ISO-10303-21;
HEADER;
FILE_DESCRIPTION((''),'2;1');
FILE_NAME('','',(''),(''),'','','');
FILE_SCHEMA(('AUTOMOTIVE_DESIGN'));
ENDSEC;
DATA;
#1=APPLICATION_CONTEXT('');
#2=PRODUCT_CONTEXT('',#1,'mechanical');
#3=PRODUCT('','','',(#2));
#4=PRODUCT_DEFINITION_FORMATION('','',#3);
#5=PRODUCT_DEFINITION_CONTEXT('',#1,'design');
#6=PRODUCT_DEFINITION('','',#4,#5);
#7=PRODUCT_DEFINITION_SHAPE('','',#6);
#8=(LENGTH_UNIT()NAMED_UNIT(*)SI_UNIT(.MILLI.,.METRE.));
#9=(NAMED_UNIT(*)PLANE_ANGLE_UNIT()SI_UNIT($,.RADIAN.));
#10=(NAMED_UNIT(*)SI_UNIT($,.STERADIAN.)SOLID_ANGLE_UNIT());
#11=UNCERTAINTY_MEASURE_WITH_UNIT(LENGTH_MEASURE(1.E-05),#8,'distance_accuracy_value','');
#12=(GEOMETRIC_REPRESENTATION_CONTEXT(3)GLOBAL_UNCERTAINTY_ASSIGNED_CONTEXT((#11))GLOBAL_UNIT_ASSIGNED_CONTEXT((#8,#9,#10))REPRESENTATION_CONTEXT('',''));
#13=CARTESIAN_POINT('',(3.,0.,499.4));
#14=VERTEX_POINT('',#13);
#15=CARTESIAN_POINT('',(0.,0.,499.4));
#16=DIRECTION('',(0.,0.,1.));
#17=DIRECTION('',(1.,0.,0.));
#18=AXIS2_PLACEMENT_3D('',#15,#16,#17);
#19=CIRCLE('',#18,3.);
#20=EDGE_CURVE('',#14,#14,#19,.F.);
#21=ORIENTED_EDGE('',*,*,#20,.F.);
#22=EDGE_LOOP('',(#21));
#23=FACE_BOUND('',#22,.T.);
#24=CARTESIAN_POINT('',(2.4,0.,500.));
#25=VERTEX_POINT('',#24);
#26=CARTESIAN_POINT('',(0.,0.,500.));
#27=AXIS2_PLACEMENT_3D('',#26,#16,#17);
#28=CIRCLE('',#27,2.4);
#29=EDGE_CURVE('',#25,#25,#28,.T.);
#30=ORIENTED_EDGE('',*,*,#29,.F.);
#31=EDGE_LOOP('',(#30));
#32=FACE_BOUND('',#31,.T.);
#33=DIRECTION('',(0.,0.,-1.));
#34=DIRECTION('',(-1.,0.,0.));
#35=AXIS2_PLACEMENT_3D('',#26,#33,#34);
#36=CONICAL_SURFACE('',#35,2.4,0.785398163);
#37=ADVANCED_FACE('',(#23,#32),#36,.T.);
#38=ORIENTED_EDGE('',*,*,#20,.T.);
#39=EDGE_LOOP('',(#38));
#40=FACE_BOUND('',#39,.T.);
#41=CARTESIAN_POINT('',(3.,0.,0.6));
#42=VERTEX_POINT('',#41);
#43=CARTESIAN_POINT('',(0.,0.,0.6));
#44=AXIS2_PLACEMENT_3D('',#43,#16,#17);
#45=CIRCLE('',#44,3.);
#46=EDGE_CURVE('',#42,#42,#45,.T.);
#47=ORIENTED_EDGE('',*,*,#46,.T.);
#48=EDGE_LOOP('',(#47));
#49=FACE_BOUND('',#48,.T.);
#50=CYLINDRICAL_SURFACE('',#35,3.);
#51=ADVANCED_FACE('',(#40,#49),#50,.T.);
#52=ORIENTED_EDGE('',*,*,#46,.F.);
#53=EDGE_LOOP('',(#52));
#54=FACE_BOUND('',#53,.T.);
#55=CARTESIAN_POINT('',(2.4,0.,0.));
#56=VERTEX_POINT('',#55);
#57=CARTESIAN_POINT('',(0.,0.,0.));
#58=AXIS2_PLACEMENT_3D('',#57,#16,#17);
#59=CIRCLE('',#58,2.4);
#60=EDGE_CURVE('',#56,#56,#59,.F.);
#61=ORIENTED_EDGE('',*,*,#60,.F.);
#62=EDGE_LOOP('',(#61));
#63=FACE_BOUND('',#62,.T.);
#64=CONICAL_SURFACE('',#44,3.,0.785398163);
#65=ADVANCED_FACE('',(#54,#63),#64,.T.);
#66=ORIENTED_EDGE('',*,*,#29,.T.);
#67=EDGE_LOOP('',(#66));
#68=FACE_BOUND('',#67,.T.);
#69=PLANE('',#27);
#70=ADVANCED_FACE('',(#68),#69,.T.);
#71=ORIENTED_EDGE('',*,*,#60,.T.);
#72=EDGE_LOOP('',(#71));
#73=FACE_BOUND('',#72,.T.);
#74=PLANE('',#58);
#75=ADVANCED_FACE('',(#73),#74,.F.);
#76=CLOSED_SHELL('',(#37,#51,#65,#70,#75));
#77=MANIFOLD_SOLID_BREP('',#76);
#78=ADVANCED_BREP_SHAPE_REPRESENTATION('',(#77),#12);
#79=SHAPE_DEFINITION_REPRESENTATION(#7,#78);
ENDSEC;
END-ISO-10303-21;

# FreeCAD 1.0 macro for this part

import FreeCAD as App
import Part
import Sketcher


def edges_at(feature, points):
    """Names of the edges that pass closest to the given points."""
    edges = feature.Shape.Edges
    near = lambda p: min(range(len(edges)), key=lambda i: edges[i].distToShape(Part.Vertex(*p))[0])
    return sorted({f"Edge{near(p) + 1}" for p in points})

doc = App.newDocument("Part")
body = doc.addObject("PartDesign::Body", "Body")

sketch1 = body.newObject("Sketcher::SketchObject", "Sketch")
sketch1.AttachmentSupport = (doc.getObject("XY_Plane"), [""])
sketch1.MapMode = "FlatFace"
sketch1.addGeometry(Part.Circle(App.Vector(0, 0, 0), App.Vector(0, 0, 1), 3), False)
sketch1.addConstraint(Sketcher.Constraint("Coincident", 0, 3, -1, 1))
sketch1.addConstraint(Sketcher.Constraint("Diameter", 0, 6.0))
pad1 = body.newObject("PartDesign::Pad", "Pad")
pad1.Profile = sketch1
pad1.Length = 500
doc.recompute()

chamfer = body.newObject("PartDesign::Chamfer", "Chamfer")
chamfer.Base = (pad1, edges_at(pad1, [(-3, 0, 0), (-3, 0, 500)]))
chamfer.Size = 0.6

doc.recompute()
